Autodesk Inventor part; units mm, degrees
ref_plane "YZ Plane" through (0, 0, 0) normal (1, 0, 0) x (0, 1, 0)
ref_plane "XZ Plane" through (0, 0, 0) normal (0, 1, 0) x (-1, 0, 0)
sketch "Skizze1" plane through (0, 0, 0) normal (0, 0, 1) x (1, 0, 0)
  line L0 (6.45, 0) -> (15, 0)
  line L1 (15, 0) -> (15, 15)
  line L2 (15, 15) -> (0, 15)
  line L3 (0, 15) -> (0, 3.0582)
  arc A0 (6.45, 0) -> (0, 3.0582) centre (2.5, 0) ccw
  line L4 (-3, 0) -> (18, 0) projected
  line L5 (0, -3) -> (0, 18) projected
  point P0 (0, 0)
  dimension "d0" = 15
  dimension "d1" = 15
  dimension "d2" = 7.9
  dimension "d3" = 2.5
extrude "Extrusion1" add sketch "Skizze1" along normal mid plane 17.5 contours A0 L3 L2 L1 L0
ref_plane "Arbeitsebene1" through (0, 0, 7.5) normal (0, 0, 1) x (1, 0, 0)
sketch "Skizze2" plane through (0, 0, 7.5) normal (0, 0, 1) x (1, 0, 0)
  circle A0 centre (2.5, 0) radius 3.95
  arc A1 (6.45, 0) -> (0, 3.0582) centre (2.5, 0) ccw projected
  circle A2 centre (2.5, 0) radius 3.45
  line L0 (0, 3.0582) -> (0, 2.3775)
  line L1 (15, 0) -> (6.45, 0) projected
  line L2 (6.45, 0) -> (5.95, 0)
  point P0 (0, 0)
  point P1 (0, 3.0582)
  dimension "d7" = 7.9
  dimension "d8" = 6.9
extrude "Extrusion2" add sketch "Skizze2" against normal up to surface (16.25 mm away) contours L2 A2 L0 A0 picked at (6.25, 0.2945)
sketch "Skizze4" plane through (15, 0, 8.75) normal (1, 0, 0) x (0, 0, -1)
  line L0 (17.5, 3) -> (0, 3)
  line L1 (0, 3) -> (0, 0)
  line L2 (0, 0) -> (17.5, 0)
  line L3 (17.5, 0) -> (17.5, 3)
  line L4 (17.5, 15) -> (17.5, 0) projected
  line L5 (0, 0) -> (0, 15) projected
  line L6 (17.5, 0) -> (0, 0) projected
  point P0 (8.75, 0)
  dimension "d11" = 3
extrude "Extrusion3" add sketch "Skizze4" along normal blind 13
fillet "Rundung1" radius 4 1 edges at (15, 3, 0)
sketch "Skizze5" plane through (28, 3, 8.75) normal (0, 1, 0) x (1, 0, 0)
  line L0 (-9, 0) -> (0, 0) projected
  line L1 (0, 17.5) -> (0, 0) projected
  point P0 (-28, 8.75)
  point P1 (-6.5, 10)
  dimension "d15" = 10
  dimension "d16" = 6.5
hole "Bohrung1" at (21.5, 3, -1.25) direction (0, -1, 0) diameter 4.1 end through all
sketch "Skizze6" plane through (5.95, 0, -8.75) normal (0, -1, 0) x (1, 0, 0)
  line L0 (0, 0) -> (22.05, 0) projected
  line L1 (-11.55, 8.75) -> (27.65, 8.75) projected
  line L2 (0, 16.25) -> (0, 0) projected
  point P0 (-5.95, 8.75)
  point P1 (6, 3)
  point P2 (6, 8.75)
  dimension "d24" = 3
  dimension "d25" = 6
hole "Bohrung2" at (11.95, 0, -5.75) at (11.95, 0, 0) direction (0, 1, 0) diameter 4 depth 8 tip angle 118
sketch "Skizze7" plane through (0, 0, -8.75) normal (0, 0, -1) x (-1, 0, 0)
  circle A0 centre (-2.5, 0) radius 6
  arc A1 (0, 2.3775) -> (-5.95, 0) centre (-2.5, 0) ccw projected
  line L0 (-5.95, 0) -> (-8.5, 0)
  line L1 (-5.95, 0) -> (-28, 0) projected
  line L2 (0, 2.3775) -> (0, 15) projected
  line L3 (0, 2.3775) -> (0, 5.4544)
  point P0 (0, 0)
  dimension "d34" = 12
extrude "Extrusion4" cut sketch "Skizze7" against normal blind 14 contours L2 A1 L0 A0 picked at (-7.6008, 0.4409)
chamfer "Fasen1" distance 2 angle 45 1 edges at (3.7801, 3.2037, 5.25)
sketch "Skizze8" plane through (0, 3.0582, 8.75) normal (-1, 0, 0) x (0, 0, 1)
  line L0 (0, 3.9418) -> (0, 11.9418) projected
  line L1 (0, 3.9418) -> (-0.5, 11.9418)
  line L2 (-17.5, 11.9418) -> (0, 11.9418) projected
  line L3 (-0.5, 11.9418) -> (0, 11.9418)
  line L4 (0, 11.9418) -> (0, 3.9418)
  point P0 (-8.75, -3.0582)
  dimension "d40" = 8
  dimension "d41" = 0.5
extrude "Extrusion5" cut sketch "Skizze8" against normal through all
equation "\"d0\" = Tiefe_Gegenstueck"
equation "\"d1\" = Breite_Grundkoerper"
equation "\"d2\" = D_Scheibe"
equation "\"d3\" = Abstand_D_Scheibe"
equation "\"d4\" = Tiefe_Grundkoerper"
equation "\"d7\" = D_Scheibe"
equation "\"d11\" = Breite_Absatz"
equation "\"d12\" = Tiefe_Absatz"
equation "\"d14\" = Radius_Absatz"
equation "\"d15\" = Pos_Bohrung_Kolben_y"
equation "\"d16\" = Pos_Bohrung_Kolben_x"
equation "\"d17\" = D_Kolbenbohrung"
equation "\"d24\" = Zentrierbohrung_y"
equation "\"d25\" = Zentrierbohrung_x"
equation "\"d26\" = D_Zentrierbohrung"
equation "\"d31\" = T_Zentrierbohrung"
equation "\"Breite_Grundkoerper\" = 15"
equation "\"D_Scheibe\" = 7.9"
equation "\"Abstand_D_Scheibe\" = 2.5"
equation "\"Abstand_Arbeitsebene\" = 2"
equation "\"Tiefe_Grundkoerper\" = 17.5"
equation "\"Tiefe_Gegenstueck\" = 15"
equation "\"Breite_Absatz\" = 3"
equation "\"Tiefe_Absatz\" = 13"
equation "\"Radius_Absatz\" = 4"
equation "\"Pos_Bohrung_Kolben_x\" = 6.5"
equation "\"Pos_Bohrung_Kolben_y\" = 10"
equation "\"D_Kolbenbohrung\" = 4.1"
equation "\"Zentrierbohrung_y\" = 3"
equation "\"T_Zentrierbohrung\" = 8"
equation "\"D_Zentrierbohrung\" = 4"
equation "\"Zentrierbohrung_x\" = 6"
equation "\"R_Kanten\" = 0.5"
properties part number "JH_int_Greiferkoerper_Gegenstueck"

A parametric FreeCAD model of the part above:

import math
import FreeCAD as App
import Part
import Sketcher
from FreeCAD import Vector
Q = App.Units.Quantity


def edges_at(feature, points):
    """Names of the edges that pass closest to the given points."""
    edges = feature.Shape.Edges
    near = lambda p: min(range(len(edges)), key=lambda i: edges[i].distToShape(Part.Vertex(*p))[0])
    return sorted({f"Edge{near(p) + 1}" for p in points})

doc = App.newDocument("Part")
body = doc.addObject("PartDesign::Body", "Body")

sketch1 = body.newObject("Sketcher::SketchObject", "Sketch")
sketch1.AttachmentSupport = (doc.getObject("XY_Plane"), [""])
sketch1.MapMode = "FlatFace"
sketch1.addGeometry([
    Part.ArcOfCircle(Part.Circle(Vector(2.5, 0, 0), Vector(0, 0, 1), 4), math.radians(0), math.radians(129)),
    Part.LineSegment(Vector(6.5, 0, 0), Vector(15, 0, 0)),
    Part.LineSegment(Vector(15, 0, 0), Vector(15, 15, 0)),
    Part.LineSegment(Vector(15, 15, 0), Vector(0, 15, 0)),
    Part.LineSegment(Vector(0, 15, 0), Vector(0, 3.1, 0)),
], False)
sketch1.addConstraint([
    Sketcher.Constraint("Coincident", 0, 1, 1, 1),
    Sketcher.Constraint("Coincident", 1, 2, 2, 1),
    Sketcher.Constraint("Coincident", 2, 2, 3, 1),
    Sketcher.Constraint("Coincident", 3, 2, 4, 1),
    Sketcher.Constraint("Coincident", 4, 2, 0, 2),
    Sketcher.Constraint("Horizontal", 1),
    Sketcher.Constraint("Vertical", 2),
    Sketcher.Constraint("Horizontal", 3),
    Sketcher.Constraint("Vertical", 4),
    Sketcher.Constraint("PointOnObject", 0, 3, -1),
    Sketcher.Constraint("PointOnObject", 0, 1, -1),
    Sketcher.Constraint("PointOnObject", 3, 2, -2),
    Sketcher.Constraint("Equal", 3, 2),
    Sketcher.Constraint("DistanceX", 3, 2, 3, 1, Q("15 mm")),
    Sketcher.Constraint("Radius", 0, Q("3.95 mm")),
    Sketcher.Constraint("DistanceX", -1, 1, 0, 3, Q("2.5 mm")),
])
pad1 = body.newObject("PartDesign::Pad", "Pad")
pad1.Profile = sketch1
pad1.Length = 17.5
pad1.Midplane = True

sketch2 = body.newObject("Sketcher::SketchObject", "Sketch001")
sketch2.AttachmentSupport = (doc.getObject("XY_Plane"), [""])
sketch2.MapMode = "FlatFace"
sketch2.AttachmentOffset = App.Placement(Vector(0, 0, 7.5), App.Rotation())
sketch2.addGeometry([
    Part.LineSegment(Vector(6, 0, 0), Vector(6.5, 0, 0)),
    Part.ArcOfCircle(Part.Circle(Vector(2.5, 0, 0), Vector(0, 0, 1), 4), math.radians(0), math.radians(129)),
    Part.LineSegment(Vector(0, 3.1, 0), Vector(0, 2.4, 0)),
    Part.ArcOfCircle(Part.Circle(Vector(2.5, 0, 0), Vector(0, 0, 1), 3.5), math.radians(0), math.radians(136)),
], False)
sketch2.addConstraint([
    Sketcher.Constraint("Coincident", 0, 2, 1, 1),
    Sketcher.Constraint("Coincident", 1, 2, 2, 1),
    Sketcher.Constraint("Coincident", 2, 2, 3, 2),
    Sketcher.Constraint("Coincident", 3, 1, 0, 1),
    Sketcher.Constraint("Horizontal", 0),
    Sketcher.Constraint("Vertical", 2),
    Sketcher.Constraint("Coincident", 3, 3, 1, 3),
    Sketcher.Constraint("PointOnObject", 1, 3, -1),
    Sketcher.Constraint("PointOnObject", 0, 2, -1),
    Sketcher.Constraint("PointOnObject", 1, 2, -2),
    Sketcher.Constraint("Radius", 1, Q("3.95 mm")),
    Sketcher.Constraint("Radius", 3, Q("3.45 mm")),
    Sketcher.Constraint("DistanceX", -1, 1, 1, 3, Q("2.5 mm")),
])
pad2 = body.newObject("PartDesign::Pad", "Pad001")
pad2.Profile = sketch2
pad2.Length = 16.25
pad2.Reversed = True

sketch3 = body.newObject("Sketcher::SketchObject", "Sketch002")
sketch3.AttachmentSupport = (doc.getObject("YZ_Plane"), [""])
sketch3.MapMode = "FlatFace"
sketch3.AttachmentOffset = App.Placement(Vector(0, 0, 15), App.Rotation())
sketch3.addGeometry([
    Part.LineSegment(Vector(0, -8.8, 0), Vector(3, -8.8, 0)),
    Part.LineSegment(Vector(3, -8.8, 0), Vector(3, 8.8, 0)),
    Part.LineSegment(Vector(3, 8.8, 0), Vector(0, 8.8, 0)),
    Part.LineSegment(Vector(0, 8.8, 0), Vector(0, -8.8, 0)),
], False)
sketch3.addConstraint([
    Sketcher.Constraint("Coincident", 0, 2, 1, 1),
    Sketcher.Constraint("Coincident", 1, 2, 2, 1),
    Sketcher.Constraint("Coincident", 2, 2, 3, 1),
    Sketcher.Constraint("Coincident", 3, 2, 0, 1),
    Sketcher.Constraint("Horizontal", 0),
    Sketcher.Constraint("Vertical", 1),
    Sketcher.Constraint("Horizontal", 2),
    Sketcher.Constraint("Vertical", 3),
    Sketcher.Constraint("Symmetric", 2, 2, 3, 2, -1, 1),
    Sketcher.Constraint("DistanceX", 0, 1, 0, 2, Q("3 mm")),
    Sketcher.Constraint("DistanceY", 1, 1, 1, 2, Q("17.5 mm")),
])
pad3 = body.newObject("PartDesign::Pad", "Pad002")
pad3.Profile = sketch3
pad3.Length = 13
doc.recompute()

fillet = body.newObject("PartDesign::Fillet", "Fillet")
fillet.Base = (pad3, edges_at(pad3, [(15, 3, 0)]))
fillet.Radius = 4

sketch4 = body.newObject("Sketcher::SketchObject", "Sketch003")
sketch4.AttachmentSupport = (doc.getObject("XZ_Plane"), [""])
sketch4.MapMode = "FlatFace"
sketch4.AttachmentOffset = App.Placement(Vector(0, 0, -3), App.Rotation())
sketch4.addGeometry(Part.Circle(Vector(21.5, -1.2, 0), Vector(0, 0, 1), 2), False)
sketch4.addConstraint([
    Sketcher.Constraint("Diameter", 0, Q("4.1 mm")),
    Sketcher.Constraint("DistanceX", -1, 1, 0, 3, Q("21.5 mm")),
    Sketcher.Constraint("DistanceY", 0, 3, -1, 1, Q("1.25 mm")),
])
doc.recompute()
hole = body.newObject("PartDesign::Hole", "Hole")
hole.Profile = sketch4
hole.ThreadType = "None"
hole.Diameter = 4.1
hole.DepthType = "ThroughAll"
hole.Reversed = True

sketch5 = body.newObject("Sketcher::SketchObject", "Sketch004")
sketch5.AttachmentSupport = (doc.getObject("XZ_Plane"), [""])
sketch5.MapMode = "FlatFace"
sketch5.addGeometry([
    Part.Circle(Vector(11.9, -5.8, 0), Vector(0, 0, 1), 2),
    Part.Circle(Vector(11.9, 0, 0), Vector(0, 0, 1), 2),
], False)
sketch5.addConstraint([
    Sketcher.Constraint("Equal", 0, 1),
    Sketcher.Constraint("PointOnObject", 1, 3, -1),
    Sketcher.Constraint("Vertical", 0, 3, 1, 3),
    Sketcher.Constraint("Diameter", 0, Q("4 mm")),
    Sketcher.Constraint("DistanceX", -1, 1, 0, 3, Q("11.95 mm")),
    Sketcher.Constraint("DistanceY", 0, 3, -1, 1, Q("5.75 mm")),
])
doc.recompute()
hole2 = body.newObject("PartDesign::Hole", "Hole001")
hole2.Profile = sketch5
hole2.ThreadType = "None"
hole2.Diameter = 4
hole2.DepthType = "Dimension"
hole2.Depth = 8
hole2.DrillPoint = "Angled"
hole2.DrillPointAngle = 118

sketch6 = body.newObject("Sketcher::SketchObject", "Sketch005")
sketch6.AttachmentSupport = (doc.getObject("XY_Plane"), [""])
sketch6.MapMode = "FlatFace"
sketch6.AttachmentOffset = App.Placement(Vector(0, 0, -8.75), App.Rotation())
sketch6.addGeometry([
    Part.LineSegment(Vector(0, 2.4, 0), Vector(0, 5.5, 0)),
    Part.ArcOfCircle(Part.Circle(Vector(2.5, 0, 0), Vector(0, 0, 1), 6), math.radians(0), math.radians(115)),
    Part.LineSegment(Vector(8.5, 0, 0), Vector(6, 0, 0)),
    Part.ArcOfCircle(Part.Circle(Vector(2.5, 0, 0), Vector(0, 0, 1), 3.5), math.radians(0), math.radians(136)),
], False)
sketch6.addConstraint([
    Sketcher.Constraint("Coincident", 0, 2, 1, 2),
    Sketcher.Constraint("Coincident", 1, 1, 2, 1),
    Sketcher.Constraint("Coincident", 2, 2, 3, 1),
    Sketcher.Constraint("Coincident", 3, 2, 0, 1),
    Sketcher.Constraint("Vertical", 0),
    Sketcher.Constraint("Horizontal", 2),
    Sketcher.Constraint("Coincident", 3, 3, 1, 3),
    Sketcher.Constraint("PointOnObject", 1, 3, -1),
    Sketcher.Constraint("PointOnObject", 0, 2, -2),
    Sketcher.Constraint("PointOnObject", 1, 1, -1),
    Sketcher.Constraint("Radius", 1, Q("6 mm")),
    Sketcher.Constraint("Radius", 3, Q("3.45 mm")),
    Sketcher.Constraint("DistanceX", -1, 1, 1, 3, Q("2.5 mm")),
])
pocket1 = body.newObject("PartDesign::Pocket", "Pocket")
pocket1.Profile = sketch6
pocket1.Length = 14
pocket1.Reversed = True
doc.recompute()

chamfer = body.newObject("PartDesign::Chamfer", "Chamfer")
chamfer.Base = (pocket1, edges_at(pocket1, [(3.78, 3.204, 5.25)]))
chamfer.Size = 2

sketch7 = body.newObject("Sketcher::SketchObject", "Sketch006")
sketch7.AttachmentSupport = (doc.getObject("YZ_Plane"), [""])
sketch7.MapMode = "FlatFace"
sketch7.addGeometry([
    Part.LineSegment(Vector(15, 8.2, 0), Vector(7, 8.8, 0)),
    Part.LineSegment(Vector(7, 8.8, 0), Vector(15, 8.8, 0)),
    Part.LineSegment(Vector(15, 8.8, 0), Vector(15, 8.2, 0)),
], False)
sketch7.addConstraint([
    Sketcher.Constraint("Coincident", 0, 2, 1, 1),
    Sketcher.Constraint("Coincident", 1, 2, 2, 1),
    Sketcher.Constraint("Coincident", 2, 2, 0, 1),
    Sketcher.Constraint("Horizontal", 1),
    Sketcher.Constraint("Vertical", 2),
    Sketcher.Constraint("DistanceX", 1, 1, 1, 2, Q("8 mm")),
    Sketcher.Constraint("DistanceY", 2, 2, 2, 1, Q("0.5 mm")),
    Sketcher.Constraint("DistanceX", -1, 1, 0, 2, Q("7 mm")),
    Sketcher.Constraint("DistanceY", -1, 1, 0, 2, Q("8.75 mm")),
])
pocket2 = body.newObject("PartDesign::Pocket", "Pocket001")
pocket2.Profile = sketch7
pocket2.Type = "ThroughAll"
pocket2.Reversed = True

doc.recompute()
